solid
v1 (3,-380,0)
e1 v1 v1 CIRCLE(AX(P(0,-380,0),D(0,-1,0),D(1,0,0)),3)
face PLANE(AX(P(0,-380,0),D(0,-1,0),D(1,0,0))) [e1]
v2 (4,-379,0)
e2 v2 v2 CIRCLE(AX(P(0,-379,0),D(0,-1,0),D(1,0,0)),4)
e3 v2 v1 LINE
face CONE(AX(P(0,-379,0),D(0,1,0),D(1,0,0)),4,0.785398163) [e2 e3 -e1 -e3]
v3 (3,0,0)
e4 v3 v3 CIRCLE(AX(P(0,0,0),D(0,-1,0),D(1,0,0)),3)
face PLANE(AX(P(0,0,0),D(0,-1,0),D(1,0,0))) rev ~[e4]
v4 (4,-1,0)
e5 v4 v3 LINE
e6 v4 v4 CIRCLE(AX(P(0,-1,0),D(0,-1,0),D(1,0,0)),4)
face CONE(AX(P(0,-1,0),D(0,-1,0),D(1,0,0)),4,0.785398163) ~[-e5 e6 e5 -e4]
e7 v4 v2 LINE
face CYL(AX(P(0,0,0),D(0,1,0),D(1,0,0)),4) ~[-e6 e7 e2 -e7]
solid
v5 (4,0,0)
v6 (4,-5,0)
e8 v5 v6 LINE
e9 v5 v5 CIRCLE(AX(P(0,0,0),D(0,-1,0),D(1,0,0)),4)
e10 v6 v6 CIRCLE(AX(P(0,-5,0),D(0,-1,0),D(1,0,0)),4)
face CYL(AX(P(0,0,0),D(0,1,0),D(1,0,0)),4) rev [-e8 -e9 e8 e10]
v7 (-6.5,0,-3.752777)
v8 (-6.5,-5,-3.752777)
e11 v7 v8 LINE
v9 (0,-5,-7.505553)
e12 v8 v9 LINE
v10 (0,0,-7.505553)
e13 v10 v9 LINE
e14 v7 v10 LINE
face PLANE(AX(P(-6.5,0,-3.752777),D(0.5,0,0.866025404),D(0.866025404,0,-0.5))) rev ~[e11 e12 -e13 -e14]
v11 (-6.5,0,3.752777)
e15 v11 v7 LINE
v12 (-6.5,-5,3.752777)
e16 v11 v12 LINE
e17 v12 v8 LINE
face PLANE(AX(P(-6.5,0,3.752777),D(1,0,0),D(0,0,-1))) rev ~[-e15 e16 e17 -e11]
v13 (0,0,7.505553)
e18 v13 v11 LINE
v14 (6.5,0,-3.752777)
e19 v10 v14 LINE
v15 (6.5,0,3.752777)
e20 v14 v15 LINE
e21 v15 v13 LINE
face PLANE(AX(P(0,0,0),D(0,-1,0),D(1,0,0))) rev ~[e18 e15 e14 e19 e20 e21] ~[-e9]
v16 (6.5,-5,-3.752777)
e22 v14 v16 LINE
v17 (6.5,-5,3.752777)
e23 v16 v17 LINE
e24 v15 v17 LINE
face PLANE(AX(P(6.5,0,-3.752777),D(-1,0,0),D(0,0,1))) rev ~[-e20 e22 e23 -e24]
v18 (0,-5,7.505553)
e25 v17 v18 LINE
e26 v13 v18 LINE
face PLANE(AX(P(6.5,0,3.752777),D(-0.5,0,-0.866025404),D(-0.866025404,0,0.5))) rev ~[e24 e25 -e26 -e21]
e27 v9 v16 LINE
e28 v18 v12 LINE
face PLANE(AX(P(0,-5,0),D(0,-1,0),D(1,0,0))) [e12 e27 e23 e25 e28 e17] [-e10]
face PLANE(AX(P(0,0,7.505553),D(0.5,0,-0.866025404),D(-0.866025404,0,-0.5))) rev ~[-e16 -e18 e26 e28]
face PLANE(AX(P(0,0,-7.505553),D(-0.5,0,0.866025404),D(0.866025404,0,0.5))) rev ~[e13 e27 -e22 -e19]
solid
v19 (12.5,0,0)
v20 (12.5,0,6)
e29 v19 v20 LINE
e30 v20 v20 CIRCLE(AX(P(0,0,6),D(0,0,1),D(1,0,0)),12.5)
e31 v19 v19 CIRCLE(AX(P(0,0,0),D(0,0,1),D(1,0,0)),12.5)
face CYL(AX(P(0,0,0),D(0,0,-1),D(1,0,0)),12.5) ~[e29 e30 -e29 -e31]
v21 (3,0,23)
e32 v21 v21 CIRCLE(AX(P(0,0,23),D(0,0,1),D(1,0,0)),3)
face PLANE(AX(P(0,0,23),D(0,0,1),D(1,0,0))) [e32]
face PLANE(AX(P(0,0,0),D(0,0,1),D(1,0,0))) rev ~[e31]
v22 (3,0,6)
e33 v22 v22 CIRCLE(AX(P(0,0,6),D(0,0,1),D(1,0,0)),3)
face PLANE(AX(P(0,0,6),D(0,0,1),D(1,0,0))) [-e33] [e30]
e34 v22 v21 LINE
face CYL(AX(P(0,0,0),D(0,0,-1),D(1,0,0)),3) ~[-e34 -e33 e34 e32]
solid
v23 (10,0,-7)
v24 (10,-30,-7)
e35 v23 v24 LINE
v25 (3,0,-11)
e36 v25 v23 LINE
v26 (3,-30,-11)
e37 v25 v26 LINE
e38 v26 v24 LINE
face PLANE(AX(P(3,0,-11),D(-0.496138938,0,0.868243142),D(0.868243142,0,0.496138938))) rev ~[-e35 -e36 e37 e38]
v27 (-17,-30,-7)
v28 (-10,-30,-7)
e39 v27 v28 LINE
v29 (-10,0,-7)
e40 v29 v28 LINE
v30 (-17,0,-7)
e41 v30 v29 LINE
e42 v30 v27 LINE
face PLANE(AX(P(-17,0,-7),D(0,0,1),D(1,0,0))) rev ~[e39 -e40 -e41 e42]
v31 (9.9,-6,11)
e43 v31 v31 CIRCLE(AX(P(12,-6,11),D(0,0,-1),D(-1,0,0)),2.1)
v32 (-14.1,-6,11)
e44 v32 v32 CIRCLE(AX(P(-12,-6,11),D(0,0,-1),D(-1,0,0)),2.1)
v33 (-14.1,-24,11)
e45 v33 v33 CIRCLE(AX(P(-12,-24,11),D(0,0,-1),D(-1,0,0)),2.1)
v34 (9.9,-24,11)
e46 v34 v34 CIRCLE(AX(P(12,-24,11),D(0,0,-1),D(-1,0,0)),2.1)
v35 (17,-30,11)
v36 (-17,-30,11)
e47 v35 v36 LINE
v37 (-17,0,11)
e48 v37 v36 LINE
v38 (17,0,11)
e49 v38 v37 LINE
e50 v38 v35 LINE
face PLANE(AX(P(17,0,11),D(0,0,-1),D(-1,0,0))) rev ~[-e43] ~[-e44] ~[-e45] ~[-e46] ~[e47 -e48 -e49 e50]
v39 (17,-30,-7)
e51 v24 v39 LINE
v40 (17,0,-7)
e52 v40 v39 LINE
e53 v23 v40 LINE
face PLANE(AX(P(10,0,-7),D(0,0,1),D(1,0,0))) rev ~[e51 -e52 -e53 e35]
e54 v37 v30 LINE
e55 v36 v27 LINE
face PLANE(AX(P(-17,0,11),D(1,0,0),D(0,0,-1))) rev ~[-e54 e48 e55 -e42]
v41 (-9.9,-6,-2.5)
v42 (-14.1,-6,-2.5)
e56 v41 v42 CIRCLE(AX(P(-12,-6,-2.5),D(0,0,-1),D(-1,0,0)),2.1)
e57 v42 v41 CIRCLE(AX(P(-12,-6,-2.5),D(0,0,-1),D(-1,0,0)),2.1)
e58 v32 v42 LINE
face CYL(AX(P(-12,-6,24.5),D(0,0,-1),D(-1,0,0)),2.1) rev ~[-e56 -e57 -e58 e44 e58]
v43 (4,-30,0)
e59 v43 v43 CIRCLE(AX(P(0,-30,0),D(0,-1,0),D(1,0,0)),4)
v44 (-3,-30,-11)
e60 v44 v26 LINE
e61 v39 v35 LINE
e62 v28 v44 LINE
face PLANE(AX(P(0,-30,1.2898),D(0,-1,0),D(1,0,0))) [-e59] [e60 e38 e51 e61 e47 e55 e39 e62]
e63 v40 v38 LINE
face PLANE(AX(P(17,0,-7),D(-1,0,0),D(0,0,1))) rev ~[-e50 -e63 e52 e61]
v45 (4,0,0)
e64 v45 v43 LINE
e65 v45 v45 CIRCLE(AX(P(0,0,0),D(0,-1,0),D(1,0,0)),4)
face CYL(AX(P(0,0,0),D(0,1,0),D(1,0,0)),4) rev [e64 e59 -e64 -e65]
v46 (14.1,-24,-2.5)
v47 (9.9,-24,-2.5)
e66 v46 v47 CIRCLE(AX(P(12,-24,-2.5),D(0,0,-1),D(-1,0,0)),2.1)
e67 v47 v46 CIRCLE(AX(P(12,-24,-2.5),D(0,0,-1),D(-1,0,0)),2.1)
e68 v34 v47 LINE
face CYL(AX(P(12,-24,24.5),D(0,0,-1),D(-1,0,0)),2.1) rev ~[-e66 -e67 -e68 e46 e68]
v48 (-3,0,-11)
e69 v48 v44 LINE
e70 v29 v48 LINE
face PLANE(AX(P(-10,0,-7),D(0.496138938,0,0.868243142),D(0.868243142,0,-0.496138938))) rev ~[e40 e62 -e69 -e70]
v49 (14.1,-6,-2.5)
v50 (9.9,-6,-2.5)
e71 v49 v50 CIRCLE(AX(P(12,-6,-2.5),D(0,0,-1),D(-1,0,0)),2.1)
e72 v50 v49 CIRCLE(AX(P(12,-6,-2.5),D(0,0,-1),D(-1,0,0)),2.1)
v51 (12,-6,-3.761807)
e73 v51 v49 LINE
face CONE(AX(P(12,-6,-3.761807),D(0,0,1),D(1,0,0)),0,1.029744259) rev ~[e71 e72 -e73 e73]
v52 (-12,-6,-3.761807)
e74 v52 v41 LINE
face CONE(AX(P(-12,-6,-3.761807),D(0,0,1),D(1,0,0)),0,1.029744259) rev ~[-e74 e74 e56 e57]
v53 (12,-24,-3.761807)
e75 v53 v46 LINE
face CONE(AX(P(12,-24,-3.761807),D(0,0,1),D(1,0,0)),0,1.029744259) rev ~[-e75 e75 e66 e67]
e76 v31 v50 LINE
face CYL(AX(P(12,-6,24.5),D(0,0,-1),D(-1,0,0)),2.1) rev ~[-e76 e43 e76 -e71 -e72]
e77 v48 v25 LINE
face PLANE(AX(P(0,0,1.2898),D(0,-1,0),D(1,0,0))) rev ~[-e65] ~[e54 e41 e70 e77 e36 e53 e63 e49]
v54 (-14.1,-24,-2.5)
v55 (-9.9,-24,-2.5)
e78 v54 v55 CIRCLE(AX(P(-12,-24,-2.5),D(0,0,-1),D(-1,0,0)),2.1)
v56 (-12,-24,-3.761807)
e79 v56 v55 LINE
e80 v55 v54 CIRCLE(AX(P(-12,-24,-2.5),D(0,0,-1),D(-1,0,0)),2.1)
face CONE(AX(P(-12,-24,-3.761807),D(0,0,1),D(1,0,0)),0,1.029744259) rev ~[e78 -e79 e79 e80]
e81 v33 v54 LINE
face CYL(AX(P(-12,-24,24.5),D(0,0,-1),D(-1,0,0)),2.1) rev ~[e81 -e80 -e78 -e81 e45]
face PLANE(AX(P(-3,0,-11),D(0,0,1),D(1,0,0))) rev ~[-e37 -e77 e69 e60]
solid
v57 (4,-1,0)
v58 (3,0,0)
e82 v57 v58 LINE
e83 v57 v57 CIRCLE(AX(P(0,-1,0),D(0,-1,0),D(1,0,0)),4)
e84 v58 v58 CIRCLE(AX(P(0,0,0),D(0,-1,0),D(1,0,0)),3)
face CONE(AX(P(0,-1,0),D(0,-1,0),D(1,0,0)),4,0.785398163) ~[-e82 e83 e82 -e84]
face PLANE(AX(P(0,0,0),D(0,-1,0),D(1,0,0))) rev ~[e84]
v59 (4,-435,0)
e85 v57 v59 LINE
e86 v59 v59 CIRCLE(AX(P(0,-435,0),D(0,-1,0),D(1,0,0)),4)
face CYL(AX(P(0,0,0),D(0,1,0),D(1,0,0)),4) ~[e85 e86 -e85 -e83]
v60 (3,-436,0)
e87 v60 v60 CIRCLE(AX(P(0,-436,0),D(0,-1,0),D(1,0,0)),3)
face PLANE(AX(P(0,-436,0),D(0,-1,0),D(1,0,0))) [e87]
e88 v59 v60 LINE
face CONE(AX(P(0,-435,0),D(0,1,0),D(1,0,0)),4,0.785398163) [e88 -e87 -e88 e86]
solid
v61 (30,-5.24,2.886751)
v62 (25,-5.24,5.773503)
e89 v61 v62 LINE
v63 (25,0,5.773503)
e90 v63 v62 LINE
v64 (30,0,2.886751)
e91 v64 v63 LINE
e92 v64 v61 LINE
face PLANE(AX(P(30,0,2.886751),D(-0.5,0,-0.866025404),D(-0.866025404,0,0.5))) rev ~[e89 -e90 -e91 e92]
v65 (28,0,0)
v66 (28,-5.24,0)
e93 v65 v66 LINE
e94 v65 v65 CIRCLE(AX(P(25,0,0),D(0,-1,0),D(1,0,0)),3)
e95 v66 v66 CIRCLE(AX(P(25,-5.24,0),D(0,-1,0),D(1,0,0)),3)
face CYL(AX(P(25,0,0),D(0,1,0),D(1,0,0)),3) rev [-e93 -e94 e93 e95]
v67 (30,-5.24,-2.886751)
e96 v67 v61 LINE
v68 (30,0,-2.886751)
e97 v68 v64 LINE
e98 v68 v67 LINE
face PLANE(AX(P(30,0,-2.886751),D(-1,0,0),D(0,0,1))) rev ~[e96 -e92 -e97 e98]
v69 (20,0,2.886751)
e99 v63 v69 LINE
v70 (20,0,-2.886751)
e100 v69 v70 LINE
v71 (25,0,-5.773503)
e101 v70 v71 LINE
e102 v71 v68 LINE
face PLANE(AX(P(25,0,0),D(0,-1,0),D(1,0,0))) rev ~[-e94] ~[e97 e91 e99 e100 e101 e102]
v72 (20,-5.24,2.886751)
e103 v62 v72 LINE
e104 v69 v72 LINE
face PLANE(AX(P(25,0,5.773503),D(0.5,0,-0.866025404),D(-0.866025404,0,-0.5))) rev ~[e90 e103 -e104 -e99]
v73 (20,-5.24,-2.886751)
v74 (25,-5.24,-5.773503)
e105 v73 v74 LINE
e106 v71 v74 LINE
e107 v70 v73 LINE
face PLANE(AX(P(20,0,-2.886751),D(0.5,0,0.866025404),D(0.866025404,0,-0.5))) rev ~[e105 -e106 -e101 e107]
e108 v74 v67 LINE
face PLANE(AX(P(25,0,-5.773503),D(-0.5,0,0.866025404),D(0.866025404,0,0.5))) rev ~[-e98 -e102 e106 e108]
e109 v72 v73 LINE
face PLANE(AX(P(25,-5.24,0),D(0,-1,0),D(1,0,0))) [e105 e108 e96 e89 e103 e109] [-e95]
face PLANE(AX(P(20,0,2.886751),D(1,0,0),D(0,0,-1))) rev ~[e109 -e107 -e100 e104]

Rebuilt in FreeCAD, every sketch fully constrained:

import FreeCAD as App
import Part
import Sketcher
from FreeCAD import Vector
Q = App.Units.Quantity


def edges_at(feature, points):
    """Names of the edges that pass closest to the given points."""
    edges = feature.Shape.Edges
    near = lambda p: min(range(len(edges)), key=lambda i: edges[i].distToShape(Part.Vertex(*p))[0])
    return sorted({f"Edge{near(p) + 1}" for p in points})

doc = App.newDocument("Part")
body = doc.addObject("PartDesign::Body", "Body")

# Sketch on XZ plane
sketch1 = doc.addObject("Sketcher::SketchObject", "Sketch")
body.addObject(sketch1)
sketch1.AttachmentSupport = (doc.XZ_Plane, [""])
sketch1.MapMode = "FlatFace"
sketch1.addGeometry(Part.Circle(Vector(0, 0, 0), Vector(0, 0, 1), 4), False)
sketch1.addConstraint([
    Sketcher.Constraint("Coincident", 0, 3, -1, 1),
    Sketcher.Constraint("Diameter", 0, Q("8 mm")),
])
pad1 = doc.addObject("PartDesign::Pad", "Pad")
body.addObject(pad1)
pad1.Profile = sketch1
pad1.Length = 380
doc.recompute()

chamfer = doc.addObject("PartDesign::Chamfer", "Chamfer")
body.addObject(chamfer)
chamfer.Base = (pad1, edges_at(pad1, [(-4, -380, 0), (-4, 0, 0)]))
chamfer.Size = 1
body2 = doc.addObject("PartDesign::Body", "Body001")

# Sketch on XZ plane
sketch2 = doc.addObject("Sketcher::SketchObject", "Sketch001")
body2.addObject(sketch2)
sketch2.AttachmentSupport = (doc.getObject("XZ_Plane001"), [""])
sketch2.MapMode = "FlatFace"
sketch2.addGeometry(Part.Circle(Vector(0, 0, 0), Vector(0, 0, 1), 4), False)
sketch2.addConstraint([
    Sketcher.Constraint("Coincident", 0, 3, -1, 1),
    Sketcher.Constraint("Diameter", 0, Q("8 mm")),
])
pad2 = doc.addObject("PartDesign::Pad", "Pad001")
body2.addObject(pad2)
pad2.Profile = sketch2
pad2.Length = 436
doc.recompute()

chamfer2 = doc.addObject("PartDesign::Chamfer", "Chamfer001")
body2.addObject(chamfer2)
chamfer2.Base = (pad2, edges_at(pad2, [(-4, 0, 0), (-4, -436, 0)]))
chamfer2.Size = 1
body3 = doc.addObject("PartDesign::Body", "Body002")

# Sketch on XZ plane
sketch3 = doc.addObject("Sketcher::SketchObject", "Sketch002")
body3.addObject(sketch3)
sketch3.AttachmentSupport = (doc.getObject("XZ_Plane002"), [""])
sketch3.MapMode = "FlatFace"
sketch3.addGeometry([
    Part.LineSegment(Vector(6.5, -3.752777, 0), Vector(6.5, 3.752777, 0)),  # 0
    Part.LineSegment(Vector(6.5, 3.752777, 0), Vector(0, 7.505554, 0)),  # 1
    Part.LineSegment(Vector(0, 7.505554, 0), Vector(-6.5, 3.752777, 0)),  # 2
    Part.LineSegment(Vector(-6.5, 3.752777, 0), Vector(-6.5, -3.752777, 0)),  # 3
    Part.LineSegment(Vector(-6.5, -3.752777, 0), Vector(0, -7.505554, 0)),  # 4
    Part.LineSegment(Vector(0, -7.505554, 0), Vector(6.5, -3.752777, 0)),  # 5
    Part.Circle(Vector(0, 0, 0), Vector(0, 0, 1), 4),  # 6
], False)
sketch3.addConstraint([
    Sketcher.Constraint("Coincident", 0, 2, 1, 1),
    Sketcher.Constraint("Coincident", 1, 2, 2, 1),
    Sketcher.Constraint("Coincident", 2, 2, 3, 1),
    Sketcher.Constraint("Coincident", 3, 2, 4, 1),
    Sketcher.Constraint("Coincident", 4, 2, 5, 1),
    Sketcher.Constraint("Coincident", 5, 2, 0, 1),
    Sketcher.Constraint("Vertical", 0),
    Sketcher.Constraint("Vertical", 3),
    Sketcher.Constraint("Coincident", 6, 3, -1, 1),
    Sketcher.Constraint("Symmetric", 0, 2, 3, 2, -1, 1),
    Sketcher.Constraint("Symmetric", 1, 2, 4, 2, -1, 1),
    Sketcher.Constraint("PointOnObject", 1, 2, -2),
    Sketcher.Constraint("Parallel", 2, 5),
    Sketcher.Constraint("Horizontal", 0, 2, 2, 2),
    Sketcher.Constraint("Diameter", 6, Q("8 mm")),
    Sketcher.Constraint("Angle", 1, Q("150 deg")),
    Sketcher.Constraint("DistanceX", 2, 2, 0, 2, Q("13 mm")),
    Sketcher.Constraint("DistanceY", 0, 1, 0, 2, Q("7.505554 mm")),
])
pad3 = doc.addObject("PartDesign::Pad", "Pad002")
body3.addObject(pad3)
pad3.Profile = sketch3
pad3.Length = 5
body4 = doc.addObject("PartDesign::Body", "Body003")

# Sketch on XZ plane
sketch4 = doc.addObject("Sketcher::SketchObject", "Sketch003")
body4.addObject(sketch4)
sketch4.AttachmentSupport = (doc.getObject("XZ_Plane003"), [""])
sketch4.MapMode = "FlatFace"
sketch4.addGeometry([
    Part.LineSegment(Vector(30, -2.886751, 0), Vector(30, 2.886751, 0)),  # 0
    Part.LineSegment(Vector(30, 2.886751, 0), Vector(25, 5.773503, 0)),  # 1
    Part.LineSegment(Vector(25, 5.773503, 0), Vector(20, 2.886751, 0)),  # 2
    Part.LineSegment(Vector(20, 2.886751, 0), Vector(20, -2.886751, 0)),  # 3
    Part.LineSegment(Vector(20, -2.886751, 0), Vector(25, -5.773503, 0)),  # 4
    Part.LineSegment(Vector(25, -5.773503, 0), Vector(30, -2.886751, 0)),  # 5
    Part.Circle(Vector(25, 0, 0), Vector(0, 0, 1), 3),  # 6
], False)
sketch4.addConstraint([
    Sketcher.Constraint("Coincident", 0, 2, 1, 1),
    Sketcher.Constraint("Coincident", 1, 2, 2, 1),
    Sketcher.Constraint("Coincident", 2, 2, 3, 1),
    Sketcher.Constraint("Coincident", 3, 2, 4, 1),
    Sketcher.Constraint("Coincident", 4, 2, 5, 1),
    Sketcher.Constraint("Coincident", 5, 2, 0, 1),
    Sketcher.Constraint("Vertical", 0),
    Sketcher.Constraint("Vertical", 3),
    Sketcher.Constraint("Symmetric", 1, 2, 4, 2, -1),
    Sketcher.Constraint("PointOnObject", 6, 3, -1),
    Sketcher.Constraint("Parallel", 1, 4),
    Sketcher.Constraint("Parallel", 2, 5),
    Sketcher.Constraint("Horizontal", 0, 2, 2, 2),
    Sketcher.Constraint("Horizontal", 3, 2, 5, 2),
    Sketcher.Constraint("Vertical", 6, 3, 1, 2),
    Sketcher.Constraint("Diameter", 6, Q("6 mm")),
    Sketcher.Constraint("Angle", 1, Q("150 deg")),
    Sketcher.Constraint("DistanceX", -1, 1, 6, 3, Q("25 mm")),
    Sketcher.Constraint("DistanceX", -1, 1, 0, 2, Q("30 mm")),
    Sketcher.Constraint("DistanceY", 0, 1, 0, 2, Q("5.773503 mm")),
])
pad4 = doc.addObject("PartDesign::Pad", "Pad003")
body4.addObject(pad4)
pad4.Profile = sketch4
pad4.Length = 5.24
body5 = doc.addObject("PartDesign::Body", "Body004")

# Sketch on XZ plane
sketch5 = doc.addObject("Sketcher::SketchObject", "Sketch004")
body5.addObject(sketch5)
sketch5.AttachmentSupport = (doc.getObject("XZ_Plane004"), [""])
sketch5.MapMode = "FlatFace"
sketch5.addGeometry([
    Part.LineSegment(Vector(-17, 11, 0), Vector(-17, -7, 0)),  # 0
    Part.LineSegment(Vector(-17, -7, 0), Vector(-10, -7, 0)),  # 1
    Part.LineSegment(Vector(-10, -7, 0), Vector(-3, -11, 0)),  # 2
    Part.LineSegment(Vector(-3, -11, 0), Vector(3, -11, 0)),  # 3
    Part.LineSegment(Vector(3, -11, 0), Vector(10, -7, 0)),  # 4
    Part.LineSegment(Vector(10, -7, 0), Vector(17, -7, 0)),  # 5
    Part.LineSegment(Vector(17, -7, 0), Vector(17, 11, 0)),  # 6
    Part.LineSegment(Vector(17, 11, 0), Vector(-17, 11, 0)),  # 7
    Part.Circle(Vector(0, 0, 0), Vector(0, 0, 1), 4),  # 8
], False)
sketch5.addConstraint([
    Sketcher.Constraint("Coincident", 0, 2, 1, 1),
    Sketcher.Constraint("Coincident", 1, 2, 2, 1),
    Sketcher.Constraint("Coincident", 2, 2, 3, 1),
    Sketcher.Constraint("Coincident", 3, 2, 4, 1),
    Sketcher.Constraint("Coincident", 4, 2, 5, 1),
    Sketcher.Constraint("Coincident", 5, 2, 6, 1),
    Sketcher.Constraint("Coincident", 6, 2, 7, 1),
    Sketcher.Constraint("Coincident", 7, 2, 0, 1),
    Sketcher.Constraint("Vertical", 0),
    Sketcher.Constraint("Horizontal", 1),
    Sketcher.Constraint("Horizontal", 3),
    Sketcher.Constraint("Horizontal", 5),
    Sketcher.Constraint("Vertical", 6),
    Sketcher.Constraint("Horizontal", 7),
    Sketcher.Constraint("Coincident", 8, 3, -1, 1),
    Sketcher.Constraint("Symmetric", 1, 2, 4, 2, -2),
    Sketcher.Constraint("Equal", 1, 5),
    Sketcher.Constraint("Equal", 2, 4),
    Sketcher.Constraint("Diameter", 8, Q("8 mm")),
    Sketcher.Constraint("DistanceX", 1, 1, 1, 2, Q("7 mm")),
    Sketcher.Constraint("DistanceX", 3, 1, 3, 2, Q("6 mm")),
    Sketcher.Constraint("DistanceX", 7, 2, 7, 1, Q("34 mm")),
    Sketcher.Constraint("DistanceY", 0, 2, 0, 1, Q("18 mm")),
    Sketcher.Constraint("DistanceY", 0, 2, -1, 1, Q("7 mm")),
    Sketcher.Constraint("DistanceY", 2, 2, -1, 1, Q("11 mm")),
])
pad5 = doc.addObject("PartDesign::Pad", "Pad004")
body5.addObject(pad5)
pad5.Profile = sketch5
pad5.Length = 30

# Sketch on XY plane
sketch6 = doc.addObject("Sketcher::SketchObject", "Sketch005")
body5.addObject(sketch6)
sketch6.AttachmentSupport = (doc.getObject("XY_Plane004"), [""])
sketch6.MapMode = "FlatFace"
sketch6.AttachmentOffset = App.Placement(Vector(0, 0, 11), App.Rotation())
sketch6.addGeometry([
    Part.Circle(Vector(12, -24, 0), Vector(0, 0, 1), 2.1),
    Part.Circle(Vector(12, -6, 0), Vector(0, 0, 1), 2.1),
    Part.Circle(Vector(-12, -6, 0), Vector(0, 0, 1), 2.1),
    Part.Circle(Vector(-12, -24, 0), Vector(0, 0, 1), 2.1),
], False)
sketch6.addConstraint([
    Sketcher.Constraint("Equal", 0, 1),
    Sketcher.Constraint("Equal", 1, 2),
    Sketcher.Constraint("Equal", 2, 3),
    Sketcher.Constraint("Symmetric", 1, 3, 2, 3, -2),
    Sketcher.Constraint("Symmetric", 0, 3, 3, 3, -2),
    Sketcher.Constraint("Vertical", 0, 3, 1, 3),
    Sketcher.Constraint("Diameter", 0, Q("4.2 mm")),
    Sketcher.Constraint("DistanceX", -1, 1, 0, 3, Q("12 mm")),
    Sketcher.Constraint("DistanceY", 0, 3, -1, 1, Q("24 mm")),
    Sketcher.Constraint("DistanceY", 1, 3, -1, 1, Q("6 mm")),
])
doc.recompute()
hole = doc.addObject("PartDesign::Hole", "Hole")
body5.addObject(hole)
hole.Profile = sketch6
hole.ThreadType = "None"
hole.Diameter = 4.2
hole.DepthType = "Dimension"
hole.Depth = 13.5
hole.DrillPoint = "Angled"
hole.DrillPointAngle = 118
body6 = doc.addObject("PartDesign::Body", "Body005")

# Sketch on XY plane
sketch7 = doc.addObject("Sketcher::SketchObject", "Sketch006")
body6.addObject(sketch7)
sketch7.AttachmentSupport = (doc.getObject("XY_Plane005"), [""])
sketch7.MapMode = "FlatFace"
sketch7.addGeometry([
    Part.Circle(Vector(0, 0, 0), Vector(0, 0, 1), 12.5),
    Part.Circle(Vector(0, 0, 0), Vector(0, 0, 1), 3),
], False)
sketch7.addConstraint([
    Sketcher.Constraint("Coincident", 0, 3, -1, 1),
    Sketcher.Constraint("Coincident", 1, 3, -1, 1),
    Sketcher.Constraint("Diameter", 0, Q("25 mm")),
    Sketcher.Constraint("Diameter", 1, Q("6 mm")),
])
pad6 = doc.addObject("PartDesign::Pad", "Pad005")
body6.addObject(pad6)
pad6.Profile = sketch7
pad6.Length = 6

# Sketch on XY plane
sketch8 = doc.addObject("Sketcher::SketchObject", "Sketch007")
body6.addObject(sketch8)
sketch8.AttachmentSupport = (doc.getObject("XY_Plane005"), [""])
sketch8.MapMode = "FlatFace"
sketch8.addGeometry(Part.Circle(Vector(0, 0, 0), Vector(0, 0, 1), 3), False)
sketch8.addConstraint([
    Sketcher.Constraint("Coincident", 0, 3, -1, 1),
    Sketcher.Constraint("Diameter", 0, Q("6 mm")),
])
pad7 = doc.addObject("PartDesign::Pad", "Pad006")
body6.addObject(pad7)
pad7.Profile = sketch8
pad7.Length = 23

doc.recompute()
